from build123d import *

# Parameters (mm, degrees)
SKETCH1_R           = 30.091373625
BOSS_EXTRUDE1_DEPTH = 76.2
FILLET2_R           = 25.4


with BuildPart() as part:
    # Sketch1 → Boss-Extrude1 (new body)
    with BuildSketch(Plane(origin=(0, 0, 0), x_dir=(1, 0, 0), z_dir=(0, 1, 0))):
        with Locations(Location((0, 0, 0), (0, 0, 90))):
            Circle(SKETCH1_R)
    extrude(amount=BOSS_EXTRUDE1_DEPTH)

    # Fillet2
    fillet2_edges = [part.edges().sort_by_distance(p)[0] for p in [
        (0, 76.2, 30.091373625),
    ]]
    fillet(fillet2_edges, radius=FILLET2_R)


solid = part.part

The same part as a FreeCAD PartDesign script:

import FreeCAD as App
import Part
import Sketcher
from FreeCAD import Vector
Q = App.Units.Quantity


def edges_at(feature, points):
    """Names of the edges that pass closest to the given points."""
    edges = feature.Shape.Edges
    near = lambda p: min(range(len(edges)), key=lambda i: edges[i].distToShape(Part.Vertex(*p))[0])
    return sorted({f"Edge{near(p) + 1}" for p in points})

doc = App.newDocument("Part")
body = doc.addObject("PartDesign::Body", "Body")

# Sketch on XZ plane
sketch1 = doc.addObject("Sketcher::SketchObject", "Sketch")
body.addObject(sketch1)
sketch1.AttachmentSupport = (doc.XZ_Plane, [""])
sketch1.MapMode = "FlatFace"
sketch1.addGeometry(Part.Circle(Vector(0, 0, 0), Vector(0, 0, 1), 30), False)
sketch1.addConstraint([
    Sketcher.Constraint("Coincident", 0, 3, -1, 1),
    Sketcher.Constraint("Diameter", 0, Q("60.182747 mm")),
])
pad1 = doc.addObject("PartDesign::Pad", "Pad")
body.addObject(pad1)
pad1.Profile = sketch1
pad1.Length = Q("3 in")
pad1.Reversed = True
doc.recompute()

fillet = doc.addObject("PartDesign::Fillet", "Fillet")
body.addObject(fillet)
fillet.Base = (pad1, edges_at(pad1, [(0, 76.2, 30.091)]))
fillet.Radius = Q("1 in")

doc.recompute()
